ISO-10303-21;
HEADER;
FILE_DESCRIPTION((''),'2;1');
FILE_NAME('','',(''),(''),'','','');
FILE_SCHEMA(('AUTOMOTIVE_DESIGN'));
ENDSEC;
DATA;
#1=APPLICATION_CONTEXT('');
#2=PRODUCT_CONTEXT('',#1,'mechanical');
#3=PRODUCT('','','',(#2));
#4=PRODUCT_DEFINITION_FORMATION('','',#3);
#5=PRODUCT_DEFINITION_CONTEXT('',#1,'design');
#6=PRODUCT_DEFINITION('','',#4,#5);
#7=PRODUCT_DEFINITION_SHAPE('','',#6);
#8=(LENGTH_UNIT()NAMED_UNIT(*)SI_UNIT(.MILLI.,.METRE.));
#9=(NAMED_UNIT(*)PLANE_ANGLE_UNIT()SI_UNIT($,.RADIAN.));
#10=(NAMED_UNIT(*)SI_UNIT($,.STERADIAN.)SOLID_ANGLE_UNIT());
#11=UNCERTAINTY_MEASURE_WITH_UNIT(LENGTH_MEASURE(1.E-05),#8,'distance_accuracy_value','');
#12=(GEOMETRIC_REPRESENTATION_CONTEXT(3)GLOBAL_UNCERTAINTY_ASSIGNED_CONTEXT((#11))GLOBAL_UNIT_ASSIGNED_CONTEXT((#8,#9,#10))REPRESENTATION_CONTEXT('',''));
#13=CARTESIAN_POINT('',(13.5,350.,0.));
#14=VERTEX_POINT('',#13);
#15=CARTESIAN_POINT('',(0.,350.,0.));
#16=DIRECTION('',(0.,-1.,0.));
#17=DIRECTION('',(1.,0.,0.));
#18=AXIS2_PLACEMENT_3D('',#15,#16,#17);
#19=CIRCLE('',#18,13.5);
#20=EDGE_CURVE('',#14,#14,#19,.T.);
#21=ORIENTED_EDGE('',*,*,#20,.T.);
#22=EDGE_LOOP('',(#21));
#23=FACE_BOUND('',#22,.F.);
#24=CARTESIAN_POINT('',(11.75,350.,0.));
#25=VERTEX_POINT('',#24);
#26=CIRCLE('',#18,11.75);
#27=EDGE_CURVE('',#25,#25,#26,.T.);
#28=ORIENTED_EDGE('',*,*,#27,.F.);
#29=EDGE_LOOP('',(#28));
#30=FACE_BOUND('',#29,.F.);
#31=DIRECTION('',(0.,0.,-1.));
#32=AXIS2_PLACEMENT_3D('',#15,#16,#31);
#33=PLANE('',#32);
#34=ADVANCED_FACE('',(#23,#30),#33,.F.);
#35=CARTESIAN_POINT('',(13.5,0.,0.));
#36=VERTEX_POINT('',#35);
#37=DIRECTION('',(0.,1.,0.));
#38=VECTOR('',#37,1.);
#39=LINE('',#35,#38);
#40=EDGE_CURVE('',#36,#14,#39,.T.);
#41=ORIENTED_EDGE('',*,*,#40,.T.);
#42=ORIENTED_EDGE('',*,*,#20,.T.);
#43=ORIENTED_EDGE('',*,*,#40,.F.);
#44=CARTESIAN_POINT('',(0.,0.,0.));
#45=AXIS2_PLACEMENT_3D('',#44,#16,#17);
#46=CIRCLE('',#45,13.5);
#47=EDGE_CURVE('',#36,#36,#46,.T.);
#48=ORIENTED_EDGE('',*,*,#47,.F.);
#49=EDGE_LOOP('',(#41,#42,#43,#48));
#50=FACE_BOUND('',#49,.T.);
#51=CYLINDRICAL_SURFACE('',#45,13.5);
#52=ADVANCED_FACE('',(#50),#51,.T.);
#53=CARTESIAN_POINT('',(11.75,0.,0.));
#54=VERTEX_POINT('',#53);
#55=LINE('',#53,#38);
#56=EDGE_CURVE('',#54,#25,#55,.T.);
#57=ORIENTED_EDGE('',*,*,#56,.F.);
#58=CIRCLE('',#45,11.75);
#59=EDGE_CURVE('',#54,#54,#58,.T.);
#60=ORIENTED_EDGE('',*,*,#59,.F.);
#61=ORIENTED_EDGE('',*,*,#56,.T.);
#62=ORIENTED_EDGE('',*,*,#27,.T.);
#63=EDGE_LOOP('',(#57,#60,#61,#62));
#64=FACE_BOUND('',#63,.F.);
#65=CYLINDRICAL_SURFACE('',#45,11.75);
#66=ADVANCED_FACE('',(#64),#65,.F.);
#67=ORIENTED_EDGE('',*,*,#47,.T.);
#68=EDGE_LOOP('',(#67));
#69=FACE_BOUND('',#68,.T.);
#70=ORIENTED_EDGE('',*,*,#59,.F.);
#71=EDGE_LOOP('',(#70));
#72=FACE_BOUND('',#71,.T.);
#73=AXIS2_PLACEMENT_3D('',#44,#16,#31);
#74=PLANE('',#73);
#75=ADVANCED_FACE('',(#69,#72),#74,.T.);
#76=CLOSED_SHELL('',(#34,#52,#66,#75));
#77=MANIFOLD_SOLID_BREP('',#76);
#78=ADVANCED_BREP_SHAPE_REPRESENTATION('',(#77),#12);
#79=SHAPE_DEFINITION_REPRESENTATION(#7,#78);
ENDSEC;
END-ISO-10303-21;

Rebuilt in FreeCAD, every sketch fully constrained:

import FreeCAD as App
import Part
import Sketcher

V = App.Vector
Q = App.Units.Quantity

doc = App.newDocument("Part")
body = doc.addObject("PartDesign::Body", "Body")

sketch1 = body.newObject("Sketcher::SketchObject", "Sketch")
sketch1.AttachmentSupport = (doc.getObject("XZ_Plane"), [""])
sketch1.MapMode = "FlatFace"
sketch1.addGeometry([
    Part.Circle(V(0, 0, 0), V(0, 0, 1), 14),
    Part.Circle(V(0, 0, 0), V(0, 0, 1), 12),
], False)
sketch1.addConstraint([
    Sketcher.Constraint("Coincident", 0, 3, -1, 1),
    Sketcher.Constraint("Coincident", 1, 3, -1, 1),
    Sketcher.Constraint("Diameter", 0, Q("27 mm")),
    Sketcher.Constraint("Diameter", 1, Q("23.5 mm")),
])
pad1 = body.newObject("PartDesign::Pad", "Pad")
pad1.Profile = sketch1
pad1.Length = 350
pad1.Reversed = True

doc.recompute()
